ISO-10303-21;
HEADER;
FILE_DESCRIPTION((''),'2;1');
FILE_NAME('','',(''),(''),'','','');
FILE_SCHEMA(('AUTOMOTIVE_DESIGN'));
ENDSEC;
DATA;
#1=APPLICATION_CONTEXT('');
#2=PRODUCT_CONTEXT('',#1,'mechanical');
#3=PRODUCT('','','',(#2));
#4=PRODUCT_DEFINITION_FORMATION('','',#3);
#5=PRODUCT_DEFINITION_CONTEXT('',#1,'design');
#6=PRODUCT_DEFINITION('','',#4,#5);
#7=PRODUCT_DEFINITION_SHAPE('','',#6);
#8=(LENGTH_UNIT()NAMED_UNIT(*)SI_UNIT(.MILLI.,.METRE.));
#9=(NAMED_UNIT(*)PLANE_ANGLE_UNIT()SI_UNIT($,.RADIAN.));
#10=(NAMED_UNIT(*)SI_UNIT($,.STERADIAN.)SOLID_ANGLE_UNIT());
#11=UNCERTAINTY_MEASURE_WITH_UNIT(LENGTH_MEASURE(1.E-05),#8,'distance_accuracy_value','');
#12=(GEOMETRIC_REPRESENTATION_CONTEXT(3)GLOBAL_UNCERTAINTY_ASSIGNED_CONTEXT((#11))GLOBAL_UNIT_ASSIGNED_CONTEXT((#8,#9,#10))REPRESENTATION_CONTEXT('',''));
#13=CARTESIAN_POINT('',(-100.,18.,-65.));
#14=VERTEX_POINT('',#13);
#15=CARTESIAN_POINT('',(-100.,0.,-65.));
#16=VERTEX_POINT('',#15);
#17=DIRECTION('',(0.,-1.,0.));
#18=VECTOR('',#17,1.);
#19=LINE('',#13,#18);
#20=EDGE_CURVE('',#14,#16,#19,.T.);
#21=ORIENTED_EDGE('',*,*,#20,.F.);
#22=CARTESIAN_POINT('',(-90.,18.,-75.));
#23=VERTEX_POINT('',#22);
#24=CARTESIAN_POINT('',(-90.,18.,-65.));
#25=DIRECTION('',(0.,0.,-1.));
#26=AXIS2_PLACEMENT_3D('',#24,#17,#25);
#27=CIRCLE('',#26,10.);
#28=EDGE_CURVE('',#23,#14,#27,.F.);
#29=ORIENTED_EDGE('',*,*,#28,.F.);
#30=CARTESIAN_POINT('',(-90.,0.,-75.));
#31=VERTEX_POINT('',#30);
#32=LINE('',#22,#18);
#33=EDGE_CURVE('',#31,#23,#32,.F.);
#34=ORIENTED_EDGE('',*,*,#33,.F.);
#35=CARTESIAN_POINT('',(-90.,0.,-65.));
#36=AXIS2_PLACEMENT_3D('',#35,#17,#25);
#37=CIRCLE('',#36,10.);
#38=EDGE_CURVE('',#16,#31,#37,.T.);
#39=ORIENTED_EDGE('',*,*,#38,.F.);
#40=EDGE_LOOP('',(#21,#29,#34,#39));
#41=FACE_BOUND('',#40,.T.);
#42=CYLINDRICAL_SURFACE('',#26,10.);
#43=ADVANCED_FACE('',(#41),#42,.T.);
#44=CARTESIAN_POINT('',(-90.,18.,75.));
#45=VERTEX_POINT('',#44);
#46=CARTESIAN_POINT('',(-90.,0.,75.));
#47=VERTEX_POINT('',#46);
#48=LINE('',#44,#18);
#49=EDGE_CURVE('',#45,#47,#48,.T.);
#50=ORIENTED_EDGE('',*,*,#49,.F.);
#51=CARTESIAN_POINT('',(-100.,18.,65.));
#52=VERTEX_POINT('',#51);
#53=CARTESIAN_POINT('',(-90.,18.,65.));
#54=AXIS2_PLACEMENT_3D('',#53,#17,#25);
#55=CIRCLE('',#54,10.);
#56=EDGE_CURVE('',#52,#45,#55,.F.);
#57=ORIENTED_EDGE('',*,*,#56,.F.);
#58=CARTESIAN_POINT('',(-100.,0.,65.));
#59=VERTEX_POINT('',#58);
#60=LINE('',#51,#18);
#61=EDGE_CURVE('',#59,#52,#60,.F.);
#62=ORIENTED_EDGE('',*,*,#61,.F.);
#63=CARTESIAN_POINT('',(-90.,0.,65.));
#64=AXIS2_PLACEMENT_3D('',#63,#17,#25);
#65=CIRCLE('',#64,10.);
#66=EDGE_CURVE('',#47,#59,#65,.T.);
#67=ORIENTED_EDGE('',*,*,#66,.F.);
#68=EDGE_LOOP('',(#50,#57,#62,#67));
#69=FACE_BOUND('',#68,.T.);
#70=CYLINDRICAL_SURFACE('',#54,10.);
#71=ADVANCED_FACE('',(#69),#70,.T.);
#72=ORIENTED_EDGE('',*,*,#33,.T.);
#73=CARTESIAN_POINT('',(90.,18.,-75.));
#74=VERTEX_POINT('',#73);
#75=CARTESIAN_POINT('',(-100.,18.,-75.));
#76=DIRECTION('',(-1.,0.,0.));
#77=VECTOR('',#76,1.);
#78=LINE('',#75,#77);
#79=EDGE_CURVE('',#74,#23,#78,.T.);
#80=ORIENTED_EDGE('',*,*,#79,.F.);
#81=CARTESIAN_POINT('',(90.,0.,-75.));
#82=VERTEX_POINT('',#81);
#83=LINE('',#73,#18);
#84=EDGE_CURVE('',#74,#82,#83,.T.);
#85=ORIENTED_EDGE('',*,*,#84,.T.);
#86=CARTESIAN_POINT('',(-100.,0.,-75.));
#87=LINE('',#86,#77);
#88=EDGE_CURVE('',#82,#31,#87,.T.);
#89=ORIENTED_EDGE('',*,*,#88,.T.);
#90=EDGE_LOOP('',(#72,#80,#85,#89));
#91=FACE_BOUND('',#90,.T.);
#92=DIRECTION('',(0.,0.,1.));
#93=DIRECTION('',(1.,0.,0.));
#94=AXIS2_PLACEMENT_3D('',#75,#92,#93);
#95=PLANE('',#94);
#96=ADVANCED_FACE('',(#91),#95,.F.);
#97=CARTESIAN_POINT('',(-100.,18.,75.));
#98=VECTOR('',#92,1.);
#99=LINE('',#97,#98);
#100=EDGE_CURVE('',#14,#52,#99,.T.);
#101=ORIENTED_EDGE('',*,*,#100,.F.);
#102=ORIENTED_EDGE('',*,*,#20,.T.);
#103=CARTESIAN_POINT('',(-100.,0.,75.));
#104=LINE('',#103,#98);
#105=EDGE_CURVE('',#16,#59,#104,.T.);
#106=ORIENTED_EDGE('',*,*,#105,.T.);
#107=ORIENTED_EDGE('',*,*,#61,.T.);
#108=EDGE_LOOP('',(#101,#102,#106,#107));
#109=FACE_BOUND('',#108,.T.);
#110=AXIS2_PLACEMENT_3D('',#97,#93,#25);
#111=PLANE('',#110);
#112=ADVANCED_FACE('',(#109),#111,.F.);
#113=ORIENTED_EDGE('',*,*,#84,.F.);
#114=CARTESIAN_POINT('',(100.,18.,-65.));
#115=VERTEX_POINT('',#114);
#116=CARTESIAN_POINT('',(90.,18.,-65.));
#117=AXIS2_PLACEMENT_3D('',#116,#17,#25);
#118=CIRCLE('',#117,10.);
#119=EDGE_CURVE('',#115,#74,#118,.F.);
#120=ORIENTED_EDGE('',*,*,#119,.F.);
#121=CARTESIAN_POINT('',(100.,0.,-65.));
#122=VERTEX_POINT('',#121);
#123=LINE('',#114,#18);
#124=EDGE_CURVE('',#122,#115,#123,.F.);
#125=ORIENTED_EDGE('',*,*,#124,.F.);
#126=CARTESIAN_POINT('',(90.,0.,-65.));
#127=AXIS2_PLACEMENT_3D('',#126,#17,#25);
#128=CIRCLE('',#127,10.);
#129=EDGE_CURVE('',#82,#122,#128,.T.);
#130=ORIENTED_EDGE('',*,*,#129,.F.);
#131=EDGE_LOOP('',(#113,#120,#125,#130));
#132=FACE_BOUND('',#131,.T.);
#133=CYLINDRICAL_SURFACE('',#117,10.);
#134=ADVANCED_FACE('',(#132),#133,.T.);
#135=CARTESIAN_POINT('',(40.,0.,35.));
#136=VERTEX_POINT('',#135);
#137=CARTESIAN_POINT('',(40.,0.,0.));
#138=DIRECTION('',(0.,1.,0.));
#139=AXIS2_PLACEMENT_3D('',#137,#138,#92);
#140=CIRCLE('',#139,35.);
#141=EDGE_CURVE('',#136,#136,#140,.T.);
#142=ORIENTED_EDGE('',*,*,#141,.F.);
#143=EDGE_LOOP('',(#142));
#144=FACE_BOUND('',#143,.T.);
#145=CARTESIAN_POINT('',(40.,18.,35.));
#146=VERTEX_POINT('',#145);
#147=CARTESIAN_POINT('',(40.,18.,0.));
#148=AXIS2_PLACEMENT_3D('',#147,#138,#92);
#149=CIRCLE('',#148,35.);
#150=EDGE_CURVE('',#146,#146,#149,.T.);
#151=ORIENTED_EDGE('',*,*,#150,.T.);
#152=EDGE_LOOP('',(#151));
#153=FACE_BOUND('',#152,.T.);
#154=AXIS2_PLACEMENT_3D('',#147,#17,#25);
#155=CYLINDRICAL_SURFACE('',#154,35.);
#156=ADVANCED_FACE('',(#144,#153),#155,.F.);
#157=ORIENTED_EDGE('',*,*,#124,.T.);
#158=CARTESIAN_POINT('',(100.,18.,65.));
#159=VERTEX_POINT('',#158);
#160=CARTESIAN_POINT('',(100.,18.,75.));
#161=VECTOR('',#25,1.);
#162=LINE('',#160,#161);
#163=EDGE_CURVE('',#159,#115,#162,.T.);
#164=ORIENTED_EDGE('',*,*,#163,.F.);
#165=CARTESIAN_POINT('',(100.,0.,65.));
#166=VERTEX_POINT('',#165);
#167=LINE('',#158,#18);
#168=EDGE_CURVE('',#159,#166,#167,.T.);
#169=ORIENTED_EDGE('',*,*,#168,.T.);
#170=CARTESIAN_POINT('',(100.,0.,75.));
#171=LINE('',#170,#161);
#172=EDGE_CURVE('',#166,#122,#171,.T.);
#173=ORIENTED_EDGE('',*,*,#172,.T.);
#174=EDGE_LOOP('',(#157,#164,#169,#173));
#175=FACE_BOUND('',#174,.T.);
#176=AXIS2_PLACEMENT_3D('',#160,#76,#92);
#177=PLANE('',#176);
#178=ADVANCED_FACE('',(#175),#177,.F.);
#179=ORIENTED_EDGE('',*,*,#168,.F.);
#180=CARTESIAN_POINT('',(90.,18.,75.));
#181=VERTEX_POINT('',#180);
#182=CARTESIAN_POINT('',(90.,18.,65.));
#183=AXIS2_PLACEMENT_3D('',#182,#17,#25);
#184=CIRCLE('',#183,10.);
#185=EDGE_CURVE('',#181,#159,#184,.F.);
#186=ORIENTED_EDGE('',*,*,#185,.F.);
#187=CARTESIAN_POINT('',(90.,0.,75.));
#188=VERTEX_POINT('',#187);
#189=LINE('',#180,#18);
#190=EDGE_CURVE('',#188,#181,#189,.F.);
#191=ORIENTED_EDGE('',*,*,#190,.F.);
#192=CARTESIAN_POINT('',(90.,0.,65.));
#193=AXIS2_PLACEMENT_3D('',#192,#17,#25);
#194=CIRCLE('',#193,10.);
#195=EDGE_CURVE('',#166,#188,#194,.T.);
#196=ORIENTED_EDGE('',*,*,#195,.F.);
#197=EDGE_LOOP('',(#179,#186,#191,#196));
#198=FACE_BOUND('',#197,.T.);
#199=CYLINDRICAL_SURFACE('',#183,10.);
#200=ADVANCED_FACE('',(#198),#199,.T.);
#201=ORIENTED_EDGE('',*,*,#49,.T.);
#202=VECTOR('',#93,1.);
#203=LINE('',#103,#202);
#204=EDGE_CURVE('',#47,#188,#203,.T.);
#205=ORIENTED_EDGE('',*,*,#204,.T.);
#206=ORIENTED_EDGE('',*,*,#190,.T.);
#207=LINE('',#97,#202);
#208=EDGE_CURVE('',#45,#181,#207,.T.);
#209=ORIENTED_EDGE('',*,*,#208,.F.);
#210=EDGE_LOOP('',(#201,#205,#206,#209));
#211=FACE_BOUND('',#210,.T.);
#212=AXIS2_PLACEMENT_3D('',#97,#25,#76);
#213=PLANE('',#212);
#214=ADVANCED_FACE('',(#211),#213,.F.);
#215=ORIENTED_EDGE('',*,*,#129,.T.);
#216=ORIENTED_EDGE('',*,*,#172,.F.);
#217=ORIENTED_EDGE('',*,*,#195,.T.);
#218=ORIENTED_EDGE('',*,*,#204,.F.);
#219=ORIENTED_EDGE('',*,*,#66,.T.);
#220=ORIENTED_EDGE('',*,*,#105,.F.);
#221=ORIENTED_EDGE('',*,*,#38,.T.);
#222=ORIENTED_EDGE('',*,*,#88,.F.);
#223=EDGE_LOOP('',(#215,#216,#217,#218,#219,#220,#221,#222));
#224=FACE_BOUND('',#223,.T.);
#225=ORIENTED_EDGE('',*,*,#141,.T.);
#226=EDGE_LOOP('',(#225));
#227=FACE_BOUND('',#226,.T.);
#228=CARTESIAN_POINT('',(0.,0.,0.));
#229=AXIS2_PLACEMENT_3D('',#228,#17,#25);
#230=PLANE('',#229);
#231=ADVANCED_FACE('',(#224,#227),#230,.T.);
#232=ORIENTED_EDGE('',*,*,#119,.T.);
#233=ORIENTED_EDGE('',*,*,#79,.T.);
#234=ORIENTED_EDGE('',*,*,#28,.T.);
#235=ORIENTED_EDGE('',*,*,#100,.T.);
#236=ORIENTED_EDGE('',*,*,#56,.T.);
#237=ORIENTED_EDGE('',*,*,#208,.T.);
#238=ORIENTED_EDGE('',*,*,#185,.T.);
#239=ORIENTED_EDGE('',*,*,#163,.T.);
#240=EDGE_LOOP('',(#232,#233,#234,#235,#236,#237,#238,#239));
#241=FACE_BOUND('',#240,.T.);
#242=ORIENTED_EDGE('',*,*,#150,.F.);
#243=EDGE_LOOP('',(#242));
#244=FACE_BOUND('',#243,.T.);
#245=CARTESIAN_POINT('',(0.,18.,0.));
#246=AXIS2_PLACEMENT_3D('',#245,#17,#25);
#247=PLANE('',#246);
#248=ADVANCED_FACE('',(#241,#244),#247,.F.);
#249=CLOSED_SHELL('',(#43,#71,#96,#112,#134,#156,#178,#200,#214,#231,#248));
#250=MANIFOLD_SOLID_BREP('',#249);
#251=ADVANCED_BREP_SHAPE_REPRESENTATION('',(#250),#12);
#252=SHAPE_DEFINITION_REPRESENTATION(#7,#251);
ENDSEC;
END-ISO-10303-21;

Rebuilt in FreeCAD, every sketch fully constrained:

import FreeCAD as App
import Part
import Sketcher
Q = App.Units.Quantity


def edges_at(feature, points):
    """Names of the edges that pass closest to the given points."""
    edges = feature.Shape.Edges
    near = lambda p: min(range(len(edges)), key=lambda i: edges[i].distToShape(Part.Vertex(*p))[0])
    return sorted({f"Edge{near(p) + 1}" for p in points})


def add_polygon(sketch, points):
    """Adds a closed chain of lines whose ends are joined by coincident constraints."""
    first, n = sketch.GeometryCount, len(points)
    for a, b in zip(points, points[1:] + points[:1]):
        sketch.addGeometry(Part.LineSegment(App.Vector(*a, 0), App.Vector(*b, 0)), False)
    for i in range(n):
        sketch.addConstraint(Sketcher.Constraint("Coincident", first + i, 2, first + (i + 1) % n, 1))

doc = App.newDocument("Part")
body = doc.addObject("PartDesign::Body", "Body")

sketch1 = body.newObject("Sketcher::SketchObject", "Sketch")
sketch1.AttachmentSupport = (doc.getObject("XZ_Plane"), [""])
sketch1.MapMode = "FlatFace"
add_polygon(sketch1, [(-100, -75), (-100, 75), (100, 75), (100, -75)])
sketch1.addGeometry(Part.Circle(App.Vector(40, 0, 0), App.Vector(0, 0, 1), 35), False)
sketch1.addConstraint([
    Sketcher.Constraint("Vertical", 0),
    Sketcher.Constraint("Horizontal", 1),
    Sketcher.Constraint("Vertical", 2),
    Sketcher.Constraint("Horizontal", 3),
    Sketcher.Constraint("Symmetric", 0, 2, 2, 2, -1, 1),
    Sketcher.Constraint("PointOnObject", 4, 3, -1),
    Sketcher.Constraint("Diameter", 4, Q("70 mm")),
    Sketcher.Constraint("DistanceX", 1, 1, 1, 2, Q("200 mm")),
    Sketcher.Constraint("DistanceY", 0, 1, 0, 2, Q("150 mm")),
    Sketcher.Constraint("DistanceX", -1, 1, 4, 3, Q("40 mm")),
])
pad1 = body.newObject("PartDesign::Pad", "Pad")
pad1.Profile = sketch1
pad1.Length = 18
pad1.Reversed = True
doc.recompute()

fillet = body.newObject("PartDesign::Fillet", "Fillet")
fillet.Base = (pad1, edges_at(pad1, [
    (-100, 9, -75),
    (100, 9, -75),
    (100, 9, 75),
    (-100, 9, 75),
]))
fillet.Radius = 10

doc.recompute()
